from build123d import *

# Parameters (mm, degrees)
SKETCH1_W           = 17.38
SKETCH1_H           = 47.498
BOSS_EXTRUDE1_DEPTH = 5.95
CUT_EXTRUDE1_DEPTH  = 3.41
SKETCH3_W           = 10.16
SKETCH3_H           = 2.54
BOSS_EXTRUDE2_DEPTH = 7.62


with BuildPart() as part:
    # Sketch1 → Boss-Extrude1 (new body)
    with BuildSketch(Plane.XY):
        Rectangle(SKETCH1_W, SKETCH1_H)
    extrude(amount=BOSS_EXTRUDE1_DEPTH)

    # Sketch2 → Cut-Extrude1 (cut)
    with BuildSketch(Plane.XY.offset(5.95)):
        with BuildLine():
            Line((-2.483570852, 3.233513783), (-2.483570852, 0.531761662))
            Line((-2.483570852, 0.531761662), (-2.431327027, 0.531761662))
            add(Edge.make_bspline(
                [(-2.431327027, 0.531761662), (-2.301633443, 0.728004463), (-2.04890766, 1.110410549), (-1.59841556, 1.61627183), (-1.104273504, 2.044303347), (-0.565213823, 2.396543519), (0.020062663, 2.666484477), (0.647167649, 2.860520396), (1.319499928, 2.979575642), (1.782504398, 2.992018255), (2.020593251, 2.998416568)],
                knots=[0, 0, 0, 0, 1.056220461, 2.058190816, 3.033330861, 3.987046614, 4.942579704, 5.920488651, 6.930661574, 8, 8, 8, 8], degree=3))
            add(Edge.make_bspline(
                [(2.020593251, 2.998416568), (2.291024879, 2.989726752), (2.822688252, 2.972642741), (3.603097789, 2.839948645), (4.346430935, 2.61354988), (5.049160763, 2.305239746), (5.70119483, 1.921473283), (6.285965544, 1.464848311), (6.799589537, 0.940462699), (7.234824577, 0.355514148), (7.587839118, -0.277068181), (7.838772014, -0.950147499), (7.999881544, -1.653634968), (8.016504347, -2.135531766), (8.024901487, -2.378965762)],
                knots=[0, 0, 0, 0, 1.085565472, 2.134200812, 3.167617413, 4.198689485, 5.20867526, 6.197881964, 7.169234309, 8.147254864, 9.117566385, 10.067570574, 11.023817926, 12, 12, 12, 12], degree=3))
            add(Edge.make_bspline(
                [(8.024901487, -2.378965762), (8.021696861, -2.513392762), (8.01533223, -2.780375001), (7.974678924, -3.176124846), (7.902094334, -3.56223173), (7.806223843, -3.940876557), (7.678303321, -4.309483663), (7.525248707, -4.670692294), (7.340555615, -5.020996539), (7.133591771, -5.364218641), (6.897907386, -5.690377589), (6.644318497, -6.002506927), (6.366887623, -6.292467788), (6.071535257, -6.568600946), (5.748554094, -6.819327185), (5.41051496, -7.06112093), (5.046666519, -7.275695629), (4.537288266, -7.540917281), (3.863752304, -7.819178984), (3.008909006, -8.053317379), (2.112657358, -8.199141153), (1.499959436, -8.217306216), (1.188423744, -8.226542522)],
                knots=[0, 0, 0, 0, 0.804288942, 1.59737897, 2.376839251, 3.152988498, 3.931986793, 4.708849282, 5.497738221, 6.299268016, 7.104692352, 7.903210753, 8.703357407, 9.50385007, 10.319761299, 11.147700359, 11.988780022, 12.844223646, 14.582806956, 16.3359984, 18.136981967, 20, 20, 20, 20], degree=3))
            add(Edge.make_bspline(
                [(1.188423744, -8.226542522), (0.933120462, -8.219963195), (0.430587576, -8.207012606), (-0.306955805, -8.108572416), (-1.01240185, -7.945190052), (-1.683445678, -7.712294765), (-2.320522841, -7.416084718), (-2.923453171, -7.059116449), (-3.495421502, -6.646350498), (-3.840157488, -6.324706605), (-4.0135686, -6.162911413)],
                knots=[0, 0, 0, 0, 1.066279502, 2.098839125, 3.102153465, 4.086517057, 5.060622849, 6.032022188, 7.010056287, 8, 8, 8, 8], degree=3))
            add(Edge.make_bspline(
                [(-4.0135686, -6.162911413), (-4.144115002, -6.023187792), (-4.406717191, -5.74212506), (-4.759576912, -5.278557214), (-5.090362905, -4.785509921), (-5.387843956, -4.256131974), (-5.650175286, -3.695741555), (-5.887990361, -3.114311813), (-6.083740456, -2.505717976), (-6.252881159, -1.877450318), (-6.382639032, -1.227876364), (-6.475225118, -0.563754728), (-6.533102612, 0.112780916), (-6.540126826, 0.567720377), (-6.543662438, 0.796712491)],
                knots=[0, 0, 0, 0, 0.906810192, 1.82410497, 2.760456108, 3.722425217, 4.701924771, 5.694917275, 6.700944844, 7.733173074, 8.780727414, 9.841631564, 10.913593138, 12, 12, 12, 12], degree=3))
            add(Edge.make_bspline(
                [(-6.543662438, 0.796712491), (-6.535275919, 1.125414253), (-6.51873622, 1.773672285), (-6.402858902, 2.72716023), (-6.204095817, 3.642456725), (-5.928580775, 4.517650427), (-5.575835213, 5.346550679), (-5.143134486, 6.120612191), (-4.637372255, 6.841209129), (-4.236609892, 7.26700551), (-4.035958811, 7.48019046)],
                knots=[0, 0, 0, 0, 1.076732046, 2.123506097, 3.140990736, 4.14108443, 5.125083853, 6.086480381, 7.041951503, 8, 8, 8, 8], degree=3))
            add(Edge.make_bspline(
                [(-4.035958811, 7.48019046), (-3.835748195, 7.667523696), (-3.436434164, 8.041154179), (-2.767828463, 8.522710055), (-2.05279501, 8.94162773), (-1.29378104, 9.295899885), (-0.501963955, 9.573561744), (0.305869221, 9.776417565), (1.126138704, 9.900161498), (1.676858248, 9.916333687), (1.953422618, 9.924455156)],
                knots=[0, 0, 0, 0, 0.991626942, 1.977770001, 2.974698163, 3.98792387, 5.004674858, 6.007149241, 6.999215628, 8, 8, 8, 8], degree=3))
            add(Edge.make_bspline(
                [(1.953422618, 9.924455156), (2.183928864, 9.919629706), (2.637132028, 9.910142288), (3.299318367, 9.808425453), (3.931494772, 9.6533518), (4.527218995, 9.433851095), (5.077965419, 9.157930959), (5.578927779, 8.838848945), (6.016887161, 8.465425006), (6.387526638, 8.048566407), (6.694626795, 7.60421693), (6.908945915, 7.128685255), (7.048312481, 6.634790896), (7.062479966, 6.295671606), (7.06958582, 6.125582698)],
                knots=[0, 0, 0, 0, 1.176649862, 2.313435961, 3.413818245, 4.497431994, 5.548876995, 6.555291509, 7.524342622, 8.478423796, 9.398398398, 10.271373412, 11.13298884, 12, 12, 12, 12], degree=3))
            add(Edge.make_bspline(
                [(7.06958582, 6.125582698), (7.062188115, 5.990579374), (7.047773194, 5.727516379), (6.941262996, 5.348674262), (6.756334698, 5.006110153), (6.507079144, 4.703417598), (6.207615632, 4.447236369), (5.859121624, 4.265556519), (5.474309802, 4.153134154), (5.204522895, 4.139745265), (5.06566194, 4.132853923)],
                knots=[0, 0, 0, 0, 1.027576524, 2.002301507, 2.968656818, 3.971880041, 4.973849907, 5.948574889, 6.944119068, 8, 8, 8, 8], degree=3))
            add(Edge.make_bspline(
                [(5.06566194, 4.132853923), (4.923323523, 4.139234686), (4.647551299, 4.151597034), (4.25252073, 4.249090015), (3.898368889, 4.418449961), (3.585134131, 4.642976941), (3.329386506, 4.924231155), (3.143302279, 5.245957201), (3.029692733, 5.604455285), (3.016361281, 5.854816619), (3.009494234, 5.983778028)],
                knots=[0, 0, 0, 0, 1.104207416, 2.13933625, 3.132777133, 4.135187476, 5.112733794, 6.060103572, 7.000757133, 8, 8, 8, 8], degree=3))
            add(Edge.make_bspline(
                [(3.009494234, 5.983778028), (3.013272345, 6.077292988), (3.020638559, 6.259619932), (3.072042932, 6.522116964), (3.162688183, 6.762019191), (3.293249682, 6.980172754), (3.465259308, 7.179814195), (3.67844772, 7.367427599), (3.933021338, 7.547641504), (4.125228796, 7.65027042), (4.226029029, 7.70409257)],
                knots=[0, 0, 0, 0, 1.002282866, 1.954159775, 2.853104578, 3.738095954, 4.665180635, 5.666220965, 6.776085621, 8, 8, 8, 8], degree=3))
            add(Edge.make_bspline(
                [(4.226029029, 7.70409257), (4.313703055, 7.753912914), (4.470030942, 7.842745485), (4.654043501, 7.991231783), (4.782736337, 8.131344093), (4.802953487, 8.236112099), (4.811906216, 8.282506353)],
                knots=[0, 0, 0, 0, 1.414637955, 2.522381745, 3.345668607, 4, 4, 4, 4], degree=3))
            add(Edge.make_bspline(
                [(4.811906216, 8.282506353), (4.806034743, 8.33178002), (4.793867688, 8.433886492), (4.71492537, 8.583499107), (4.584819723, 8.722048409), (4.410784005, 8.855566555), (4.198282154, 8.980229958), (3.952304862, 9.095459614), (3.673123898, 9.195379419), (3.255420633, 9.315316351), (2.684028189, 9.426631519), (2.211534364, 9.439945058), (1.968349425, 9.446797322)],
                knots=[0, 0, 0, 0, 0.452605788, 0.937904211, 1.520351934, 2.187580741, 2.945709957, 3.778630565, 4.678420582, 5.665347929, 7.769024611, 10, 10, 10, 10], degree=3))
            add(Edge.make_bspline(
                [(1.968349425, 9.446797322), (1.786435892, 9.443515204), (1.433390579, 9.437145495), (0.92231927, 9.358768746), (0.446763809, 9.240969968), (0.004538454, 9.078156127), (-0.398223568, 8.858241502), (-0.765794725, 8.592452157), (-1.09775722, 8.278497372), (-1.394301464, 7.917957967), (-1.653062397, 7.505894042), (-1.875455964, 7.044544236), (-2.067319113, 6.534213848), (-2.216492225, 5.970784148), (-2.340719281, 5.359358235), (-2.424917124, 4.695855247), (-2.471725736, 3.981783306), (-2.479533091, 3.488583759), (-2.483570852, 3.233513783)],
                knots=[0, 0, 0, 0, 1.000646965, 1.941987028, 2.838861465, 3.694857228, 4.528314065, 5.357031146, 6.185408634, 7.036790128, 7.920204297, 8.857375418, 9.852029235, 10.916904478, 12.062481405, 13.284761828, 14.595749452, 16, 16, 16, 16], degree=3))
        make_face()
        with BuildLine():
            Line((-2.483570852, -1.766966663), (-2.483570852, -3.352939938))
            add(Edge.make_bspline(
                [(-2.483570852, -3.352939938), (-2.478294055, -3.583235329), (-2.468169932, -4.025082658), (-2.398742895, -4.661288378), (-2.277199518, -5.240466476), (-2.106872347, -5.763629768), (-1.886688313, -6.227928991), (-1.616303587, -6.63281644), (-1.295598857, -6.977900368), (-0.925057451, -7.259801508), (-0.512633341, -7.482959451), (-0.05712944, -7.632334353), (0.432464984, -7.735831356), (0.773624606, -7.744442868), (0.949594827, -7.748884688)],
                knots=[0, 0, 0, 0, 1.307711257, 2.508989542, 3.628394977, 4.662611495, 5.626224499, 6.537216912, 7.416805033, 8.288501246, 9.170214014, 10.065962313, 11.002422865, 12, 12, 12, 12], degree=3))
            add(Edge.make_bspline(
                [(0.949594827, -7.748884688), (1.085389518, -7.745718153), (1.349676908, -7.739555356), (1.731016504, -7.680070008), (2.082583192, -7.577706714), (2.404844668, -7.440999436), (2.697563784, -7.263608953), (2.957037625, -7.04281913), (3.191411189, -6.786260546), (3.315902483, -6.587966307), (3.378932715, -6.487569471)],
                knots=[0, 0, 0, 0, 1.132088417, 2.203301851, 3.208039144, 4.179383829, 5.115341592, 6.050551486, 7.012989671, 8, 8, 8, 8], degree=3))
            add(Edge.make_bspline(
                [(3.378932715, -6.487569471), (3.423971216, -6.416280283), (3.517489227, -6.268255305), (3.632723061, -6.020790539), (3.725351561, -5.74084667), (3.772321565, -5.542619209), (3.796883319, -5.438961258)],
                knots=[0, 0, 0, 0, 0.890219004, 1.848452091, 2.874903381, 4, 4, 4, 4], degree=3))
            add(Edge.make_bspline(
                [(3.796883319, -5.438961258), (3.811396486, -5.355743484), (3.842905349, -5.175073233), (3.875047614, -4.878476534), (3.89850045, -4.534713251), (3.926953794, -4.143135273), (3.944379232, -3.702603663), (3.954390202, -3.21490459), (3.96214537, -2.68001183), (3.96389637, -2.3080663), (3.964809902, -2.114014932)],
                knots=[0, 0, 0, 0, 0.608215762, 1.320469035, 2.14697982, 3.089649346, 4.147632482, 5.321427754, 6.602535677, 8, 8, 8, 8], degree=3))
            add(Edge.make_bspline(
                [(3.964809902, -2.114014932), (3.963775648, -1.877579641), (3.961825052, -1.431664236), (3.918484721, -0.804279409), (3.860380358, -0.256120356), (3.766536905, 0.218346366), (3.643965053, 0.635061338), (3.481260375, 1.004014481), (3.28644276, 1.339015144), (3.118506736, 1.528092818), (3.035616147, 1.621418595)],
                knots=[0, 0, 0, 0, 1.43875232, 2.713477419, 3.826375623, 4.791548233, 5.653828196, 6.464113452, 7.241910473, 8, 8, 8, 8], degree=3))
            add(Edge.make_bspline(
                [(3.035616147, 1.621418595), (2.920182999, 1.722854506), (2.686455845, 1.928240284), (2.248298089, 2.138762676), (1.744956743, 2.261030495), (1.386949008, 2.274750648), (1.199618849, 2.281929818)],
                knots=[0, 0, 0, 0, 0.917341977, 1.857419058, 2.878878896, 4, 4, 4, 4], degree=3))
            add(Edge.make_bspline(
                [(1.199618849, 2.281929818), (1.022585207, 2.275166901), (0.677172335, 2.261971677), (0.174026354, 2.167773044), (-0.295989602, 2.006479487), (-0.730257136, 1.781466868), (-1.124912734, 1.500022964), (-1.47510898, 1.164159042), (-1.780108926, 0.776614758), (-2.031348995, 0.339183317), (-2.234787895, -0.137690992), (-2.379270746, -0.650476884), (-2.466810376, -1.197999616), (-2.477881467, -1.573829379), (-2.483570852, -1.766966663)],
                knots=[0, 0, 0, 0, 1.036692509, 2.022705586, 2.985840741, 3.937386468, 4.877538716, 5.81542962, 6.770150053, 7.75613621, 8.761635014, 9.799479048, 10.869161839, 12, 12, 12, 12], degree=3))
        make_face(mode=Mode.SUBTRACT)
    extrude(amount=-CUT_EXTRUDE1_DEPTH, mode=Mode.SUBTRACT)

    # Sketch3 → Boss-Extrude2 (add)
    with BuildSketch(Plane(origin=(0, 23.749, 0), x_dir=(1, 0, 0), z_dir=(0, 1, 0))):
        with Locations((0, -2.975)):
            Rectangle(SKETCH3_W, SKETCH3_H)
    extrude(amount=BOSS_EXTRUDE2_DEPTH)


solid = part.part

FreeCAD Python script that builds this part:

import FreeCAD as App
import Part
import Sketcher
Q = App.Units.Quantity


def add_polygon(sketch, points):
    """Adds a closed chain of lines whose ends are joined by coincident constraints."""
    first, n = sketch.GeometryCount, len(points)
    for a, b in zip(points, points[1:] + points[:1]):
        sketch.addGeometry(Part.LineSegment(App.Vector(*a, 0), App.Vector(*b, 0)), False)
    for i in range(n):
        sketch.addConstraint(Sketcher.Constraint("Coincident", first + i, 2, first + (i + 1) % n, 1))

doc = App.newDocument("Part")
params = doc.addObject("Spreadsheet::Sheet", "Params")
for row, (alias, value) in enumerate([
    ("sketch1_height", "1.87 in"),
    ("pad1_length", "5.95 mm"),
    ("pocket1_length", "3.41 mm"),
    ("sketch3_width", "0.4 in"),
    ("sketch3_height", "0.1 in"),
    ("pad2_length", "0.3 in"),
], start=1):
    params.set(f"A{row}", alias)
    params.set(f"B{row}", "=" + value)
    params.setAlias(f"B{row}", alias)

body = doc.addObject("PartDesign::Body", "Body")

sketch1 = body.newObject("Sketcher::SketchObject", "Sketch")
sketch1.AttachmentSupport = (doc.getObject("XY_Plane"), [""])
sketch1.MapMode = "FlatFace"
add_polygon(sketch1, [(-8.69, 23.749), (-8.69, -23.749), (8.69, -23.749), (8.69, 23.749)])
sketch1.addConstraint([
    Sketcher.Constraint("Vertical", 0),
    Sketcher.Constraint("Horizontal", 1),
    Sketcher.Constraint("Vertical", 2),
    Sketcher.Constraint("Horizontal", 3),
    Sketcher.Constraint("Symmetric", 0, 2, 2, 2, -1, 1),
    Sketcher.Constraint("DistanceY", 0, 2, 0, 1, Q("1.87 in")),
    Sketcher.Constraint("DistanceX", 1, 1, 1, 2, Q("17.38 mm")),
])
sketch1.setExpression("Constraints[9]", "Params.sketch1_height")
pad1 = body.newObject("PartDesign::Pad", "Pad")
pad1.Profile = sketch1
pad1.setExpression("Length", "Params.pad1_length")

sketch2 = body.newObject("Sketcher::SketchObject", "Sketch001")
sketch2.AttachmentSupport = (doc.getObject("XY_Plane"), [""])
sketch2.MapMode = "FlatFace"
sketch2.AttachmentOffset = App.Placement(App.Vector(0, 0, 5.95), App.Rotation())
sketch2.addGeometry([
    Part.LineSegment(App.Vector(-2.483571, 0.531762, 0), App.Vector(-2.483571, 3.233514, 0)),
    Part.BSplineCurve([App.Vector(1.968349, 9.446797, 0), App.Vector(1.786436, 9.443515, 0), App.Vector(1.433391, 9.437145, 0), App.Vector(0.922319, 9.358769, 0), App.Vector(0.446764, 9.24097, 0), App.Vector(0.004538, 9.078156, 0), App.Vector(-0.398224, 8.858242, 0), App.Vector(-0.765795, 8.592452, 0), App.Vector(-1.097757, 8.278497, 0), App.Vector(-1.394301, 7.917958, 0), App.Vector(-1.653062, 7.505894, 0), App.Vector(-1.875456, 7.044544, 0), App.Vector(-2.067319, 6.534214, 0), App.Vector(-2.216492, 5.970784, 0), App.Vector(-2.340719, 5.359358, 0), App.Vector(-2.424917, 4.695855, 0), App.Vector(-2.471726, 3.981783, 0), App.Vector(-2.479533, 3.488584, 0), App.Vector(-2.483571, 3.233514, 0)], [4, 1, 1, 1, 1, 1, 1, 1, 1, 1, 1, 1, 1, 1, 1, 1, 4], [0, 1.000646965, 1.941987028, 2.838861465, 3.694857228, 4.528314065, 5.357031146, 6.185408634, 7.036790128, 7.920204297, 8.857375418, 9.852029235, 10.916904478, 12.062481405, 13.284761828, 14.595749452, 16], False, 3, [1, 1, 1, 1, 1, 1, 1, 1, 1, 1, 1, 1, 1, 1, 1, 1, 1, 1, 1], False),
    Part.BSplineCurve([App.Vector(4.811906, 8.282506, 0), App.Vector(4.806035, 8.33178, 0), App.Vector(4.793868, 8.433886, 0), App.Vector(4.714925, 8.583499, 0), App.Vector(4.58482, 8.722048, 0), App.Vector(4.410784, 8.855567, 0), App.Vector(4.198282, 8.98023, 0), App.Vector(3.952305, 9.09546, 0), App.Vector(3.673124, 9.195379, 0), App.Vector(3.255421, 9.315316, 0), App.Vector(2.684028, 9.426632, 0), App.Vector(2.211534, 9.439945, 0), App.Vector(1.968349, 9.446797, 0)], [4, 1, 1, 1, 1, 1, 1, 1, 1, 1, 4], [0, 0.452605788, 0.937904211, 1.520351934, 2.187580741, 2.945709957, 3.778630565, 4.678420582, 5.665347929, 7.769024611, 10], False, 3, [1, 1, 1, 1, 1, 1, 1, 1, 1, 1, 1, 1, 1], False),
    Part.BSplineCurve([App.Vector(4.226029, 7.704093, 0), App.Vector(4.313703, 7.753913, 0), App.Vector(4.470031, 7.842745, 0), App.Vector(4.654044, 7.991232, 0), App.Vector(4.782736, 8.131344, 0), App.Vector(4.802953, 8.236112, 0), App.Vector(4.811906, 8.282506, 0)], [4, 1, 1, 1, 4], [0, 1.414637955, 2.522381745, 3.345668607, 4], False, 3, [1, 1, 1, 1, 1, 1, 1], False),
    Part.BSplineCurve([App.Vector(3.009494, 5.983778, 0), App.Vector(3.013272, 6.077293, 0), App.Vector(3.020639, 6.25962, 0), App.Vector(3.072043, 6.522117, 0), App.Vector(3.162688, 6.762019, 0), App.Vector(3.29325, 6.980173, 0), App.Vector(3.465259, 7.179814, 0), App.Vector(3.678448, 7.367428, 0), App.Vector(3.933021, 7.547642, 0), App.Vector(4.125229, 7.65027, 0), App.Vector(4.226029, 7.704093, 0)], [4, 1, 1, 1, 1, 1, 1, 1, 4], [0, 1.002282866, 1.954159775, 2.853104578, 3.738095954, 4.665180635, 5.666220965, 6.776085621, 8], False, 3, [1, 1, 1, 1, 1, 1, 1, 1, 1, 1, 1], False),
    Part.BSplineCurve([App.Vector(5.065662, 4.132854, 0), App.Vector(4.923324, 4.139235, 0), App.Vector(4.647551, 4.151597, 0), App.Vector(4.252521, 4.24909, 0), App.Vector(3.898369, 4.41845, 0), App.Vector(3.585134, 4.642977, 0), App.Vector(3.329387, 4.924231, 0), App.Vector(3.143302, 5.245957, 0), App.Vector(3.029693, 5.604455, 0), App.Vector(3.016361, 5.854817, 0), App.Vector(3.009494, 5.983778, 0)], [4, 1, 1, 1, 1, 1, 1, 1, 4], [0, 1.104207416, 2.13933625, 3.132777133, 4.135187476, 5.112733794, 6.060103572, 7.000757133, 8], False, 3, [1, 1, 1, 1, 1, 1, 1, 1, 1, 1, 1], False),
    Part.BSplineCurve([App.Vector(7.069586, 6.125583, 0), App.Vector(7.062188, 5.990579, 0), App.Vector(7.047773, 5.727516, 0), App.Vector(6.941263, 5.348674, 0), App.Vector(6.756335, 5.00611, 0), App.Vector(6.507079, 4.703418, 0), App.Vector(6.207616, 4.447236, 0), App.Vector(5.859122, 4.265557, 0), App.Vector(5.47431, 4.153134, 0), App.Vector(5.204523, 4.139745, 0), App.Vector(5.065662, 4.132854, 0)], [4, 1, 1, 1, 1, 1, 1, 1, 4], [0, 1.027576524, 2.002301507, 2.968656818, 3.971880041, 4.973849907, 5.948574889, 6.944119068, 8], False, 3, [1, 1, 1, 1, 1, 1, 1, 1, 1, 1, 1], False),
    Part.BSplineCurve([App.Vector(1.953423, 9.924455, 0), App.Vector(2.183929, 9.91963, 0), App.Vector(2.637132, 9.910142, 0), App.Vector(3.299318, 9.808425, 0), App.Vector(3.931495, 9.653352, 0), App.Vector(4.527219, 9.433851, 0), App.Vector(5.077965, 9.157931, 0), App.Vector(5.578928, 8.838849, 0), App.Vector(6.016887, 8.465425, 0), App.Vector(6.387527, 8.048566, 0), App.Vector(6.694627, 7.604217, 0), App.Vector(6.908946, 7.128685, 0), App.Vector(7.048312, 6.634791, 0), App.Vector(7.06248, 6.295672, 0), App.Vector(7.069586, 6.125583, 0)], [4, 1, 1, 1, 1, 1, 1, 1, 1, 1, 1, 1, 4], [0, 1.176649862, 2.313435961, 3.413818245, 4.497431994, 5.548876995, 6.555291509, 7.524342622, 8.478423796, 9.398398398, 10.271373412, 11.13298884, 12], False, 3, [1, 1, 1, 1, 1, 1, 1, 1, 1, 1, 1, 1, 1, 1, 1], False),
    Part.BSplineCurve([App.Vector(-4.035959, 7.48019, 0), App.Vector(-3.835748, 7.667524, 0), App.Vector(-3.436434, 8.041154, 0), App.Vector(-2.767828, 8.52271, 0), App.Vector(-2.052795, 8.941628, 0), App.Vector(-1.293781, 9.2959, 0), App.Vector(-0.501964, 9.573562, 0), App.Vector(0.305869, 9.776418, 0), App.Vector(1.126139, 9.900161, 0), App.Vector(1.676858, 9.916334, 0), App.Vector(1.953423, 9.924455, 0)], [4, 1, 1, 1, 1, 1, 1, 1, 4], [0, 0.991626942, 1.977770001, 2.974698163, 3.98792387, 5.004674858, 6.007149241, 6.999215628, 8], False, 3, [1, 1, 1, 1, 1, 1, 1, 1, 1, 1, 1], False),
    Part.BSplineCurve([App.Vector(-6.543662, 0.796712, 0), App.Vector(-6.535276, 1.125414, 0), App.Vector(-6.518736, 1.773672, 0), App.Vector(-6.402859, 2.72716, 0), App.Vector(-6.204096, 3.642457, 0), App.Vector(-5.928581, 4.51765, 0), App.Vector(-5.575835, 5.346551, 0), App.Vector(-5.143134, 6.120612, 0), App.Vector(-4.637372, 6.841209, 0), App.Vector(-4.23661, 7.267006, 0), App.Vector(-4.035959, 7.48019, 0)], [4, 1, 1, 1, 1, 1, 1, 1, 4], [0, 1.076732046, 2.123506097, 3.140990736, 4.14108443, 5.125083853, 6.086480381, 7.041951503, 8], False, 3, [1, 1, 1, 1, 1, 1, 1, 1, 1, 1, 1], False),
    Part.BSplineCurve([App.Vector(-4.013569, -6.162911, 0), App.Vector(-4.144115, -6.023188, 0), App.Vector(-4.406717, -5.742125, 0), App.Vector(-4.759577, -5.278557, 0), App.Vector(-5.090363, -4.78551, 0), App.Vector(-5.387844, -4.256132, 0), App.Vector(-5.650175, -3.695742, 0), App.Vector(-5.88799, -3.114312, 0), App.Vector(-6.08374, -2.505718, 0), App.Vector(-6.252881, -1.87745, 0), App.Vector(-6.382639, -1.227876, 0), App.Vector(-6.475225, -0.563755, 0), App.Vector(-6.533103, 0.112781, 0), App.Vector(-6.540127, 0.56772, 0), App.Vector(-6.543662, 0.796712, 0)], [4, 1, 1, 1, 1, 1, 1, 1, 1, 1, 1, 1, 4], [0, 0.906810192, 1.82410497, 2.760456108, 3.722425217, 4.701924771, 5.694917275, 6.700944844, 7.733173074, 8.780727414, 9.841631564, 10.913593138, 12], False, 3, [1, 1, 1, 1, 1, 1, 1, 1, 1, 1, 1, 1, 1, 1, 1], False),
    Part.BSplineCurve([App.Vector(1.188424, -8.226543, 0), App.Vector(0.93312, -8.219963, 0), App.Vector(0.430588, -8.207013, 0), App.Vector(-0.306956, -8.108572, 0), App.Vector(-1.012402, -7.94519, 0), App.Vector(-1.683446, -7.712295, 0), App.Vector(-2.320523, -7.416085, 0), App.Vector(-2.923453, -7.059116, 0), App.Vector(-3.495422, -6.64635, 0), App.Vector(-3.840157, -6.324707, 0), App.Vector(-4.013569, -6.162911, 0)], [4, 1, 1, 1, 1, 1, 1, 1, 4], [0, 1.066279502, 2.098839125, 3.102153465, 4.086517057, 5.060622849, 6.032022188, 7.010056287, 8], False, 3, [1, 1, 1, 1, 1, 1, 1, 1, 1, 1, 1], False),
    Part.BSplineCurve([App.Vector(8.024901, -2.378966, 0), App.Vector(8.021697, -2.513393, 0), App.Vector(8.015332, -2.780375, 0), App.Vector(7.974679, -3.176125, 0), App.Vector(7.902094, -3.562232, 0), App.Vector(7.806224, -3.940877, 0), App.Vector(7.678303, -4.309484, 0), App.Vector(7.525249, -4.670692, 0), App.Vector(7.340556, -5.020997, 0), App.Vector(7.133592, -5.364219, 0), App.Vector(6.897907, -5.690378, 0), App.Vector(6.644318, -6.002507, 0), App.Vector(6.366888, -6.292468, 0), App.Vector(6.071535, -6.568601, 0), App.Vector(5.748554, -6.819327, 0), App.Vector(5.410515, -7.061121, 0), App.Vector(5.046667, -7.275696, 0), App.Vector(4.537288, -7.540917, 0), App.Vector(3.863752, -7.819179, 0), App.Vector(3.008909, -8.053317, 0), App.Vector(2.112657, -8.199141, 0), App.Vector(1.499959, -8.217306, 0), App.Vector(1.188424, -8.226543, 0)], [4, 1, 1, 1, 1, 1, 1, 1, 1, 1, 1, 1, 1, 1, 1, 1, 1, 1, 1, 1, 4], [0, 0.804288942, 1.59737897, 2.376839251, 3.152988498, 3.931986793, 4.708849282, 5.497738221, 6.299268016, 7.104692352, 7.903210753, 8.703357407, 9.50385007, 10.319761299, 11.147700359, 11.988780022, 12.844223646, 14.582806956, 16.3359984, 18.136981967, 20], False, 3, [1, 1, 1, 1, 1, 1, 1, 1, 1, 1, 1, 1, 1, 1, 1, 1, 1, 1, 1, 1, 1, 1, 1], False),
    Part.BSplineCurve([App.Vector(2.020593, 2.998417, 0), App.Vector(2.291025, 2.989727, 0), App.Vector(2.822688, 2.972643, 0), App.Vector(3.603098, 2.839949, 0), App.Vector(4.346431, 2.61355, 0), App.Vector(5.049161, 2.30524, 0), App.Vector(5.701195, 1.921473, 0), App.Vector(6.285966, 1.464848, 0), App.Vector(6.79959, 0.940463, 0), App.Vector(7.234825, 0.355514, 0), App.Vector(7.587839, -0.277068, 0), App.Vector(7.838772, -0.950147, 0), App.Vector(7.999882, -1.653635, 0), App.Vector(8.016504, -2.135532, 0), App.Vector(8.024901, -2.378966, 0)], [4, 1, 1, 1, 1, 1, 1, 1, 1, 1, 1, 1, 4], [0, 1.085565472, 2.134200812, 3.167617413, 4.198689485, 5.20867526, 6.197881964, 7.169234309, 8.147254864, 9.117566385, 10.067570574, 11.023817926, 12], False, 3, [1, 1, 1, 1, 1, 1, 1, 1, 1, 1, 1, 1, 1, 1, 1], False),
    Part.BSplineCurve([App.Vector(-2.431327, 0.531762, 0), App.Vector(-2.301633, 0.728004, 0), App.Vector(-2.048908, 1.110411, 0), App.Vector(-1.598416, 1.616272, 0), App.Vector(-1.104274, 2.044303, 0), App.Vector(-0.565214, 2.396544, 0), App.Vector(0.020063, 2.666484, 0), App.Vector(0.647168, 2.86052, 0), App.Vector(1.3195, 2.979576, 0), App.Vector(1.782504, 2.992018, 0), App.Vector(2.020593, 2.998417, 0)], [4, 1, 1, 1, 1, 1, 1, 1, 4], [0, 1.056220461, 2.058190816, 3.033330861, 3.987046614, 4.942579704, 5.920488651, 6.930661574, 8], False, 3, [1, 1, 1, 1, 1, 1, 1, 1, 1, 1, 1], False),
    Part.LineSegment(App.Vector(-2.431327, 0.531762, 0), App.Vector(-2.483571, 0.531762, 0)),
    Part.BSplineCurve([App.Vector(1.199619, 2.28193, 0), App.Vector(1.022585, 2.275167, 0), App.Vector(0.677172, 2.261972, 0), App.Vector(0.174026, 2.167773, 0), App.Vector(-0.29599, 2.006479, 0), App.Vector(-0.730257, 1.781467, 0), App.Vector(-1.124913, 1.500023, 0), App.Vector(-1.475109, 1.164159, 0), App.Vector(-1.780109, 0.776615, 0), App.Vector(-2.031349, 0.339183, 0), App.Vector(-2.234788, -0.137691, 0), App.Vector(-2.379271, -0.650477, 0), App.Vector(-2.46681, -1.198, 0), App.Vector(-2.477881, -1.573829, 0), App.Vector(-2.483571, -1.766967, 0)], [4, 1, 1, 1, 1, 1, 1, 1, 1, 1, 1, 1, 4], [0, 1.036692509, 2.022705586, 2.985840741, 3.937386468, 4.877538716, 5.81542962, 6.770150053, 7.75613621, 8.761635014, 9.799479048, 10.869161839, 12], False, 3, [1, 1, 1, 1, 1, 1, 1, 1, 1, 1, 1, 1, 1, 1, 1], False),
    Part.BSplineCurve([App.Vector(3.035616, 1.621419, 0), App.Vector(2.920183, 1.722855, 0), App.Vector(2.686456, 1.92824, 0), App.Vector(2.248298, 2.138763, 0), App.Vector(1.744957, 2.26103, 0), App.Vector(1.386949, 2.274751, 0), App.Vector(1.199619, 2.28193, 0)], [4, 1, 1, 1, 4], [0, 0.917341977, 1.857419058, 2.878878896, 4], False, 3, [1, 1, 1, 1, 1, 1, 1], False),
    Part.BSplineCurve([App.Vector(3.96481, -2.114015, 0), App.Vector(3.963776, -1.87758, 0), App.Vector(3.961825, -1.431664, 0), App.Vector(3.918485, -0.804279, 0), App.Vector(3.86038, -0.25612, 0), App.Vector(3.766537, 0.218346, 0), App.Vector(3.643965, 0.635061, 0), App.Vector(3.48126, 1.004014, 0), App.Vector(3.286443, 1.339015, 0), App.Vector(3.118507, 1.528093, 0), App.Vector(3.035616, 1.621419, 0)], [4, 1, 1, 1, 1, 1, 1, 1, 4], [0, 1.43875232, 2.713477419, 3.826375623, 4.791548233, 5.653828196, 6.464113452, 7.241910473, 8], False, 3, [1, 1, 1, 1, 1, 1, 1, 1, 1, 1, 1], False),
    Part.BSplineCurve([App.Vector(3.796883, -5.438961, 0), App.Vector(3.811396, -5.355743, 0), App.Vector(3.842905, -5.175073, 0), App.Vector(3.875048, -4.878477, 0), App.Vector(3.8985, -4.534713, 0), App.Vector(3.926954, -4.143135, 0), App.Vector(3.944379, -3.702604, 0), App.Vector(3.95439, -3.214905, 0), App.Vector(3.962145, -2.680012, 0), App.Vector(3.963896, -2.308066, 0), App.Vector(3.96481, -2.114015, 0)], [4, 1, 1, 1, 1, 1, 1, 1, 4], [0, 0.608215762, 1.320469035, 2.14697982, 3.089649346, 4.147632482, 5.321427754, 6.602535677, 8], False, 3, [1, 1, 1, 1, 1, 1, 1, 1, 1, 1, 1], False),
    Part.BSplineCurve([App.Vector(3.378933, -6.487569, 0), App.Vector(3.423971, -6.41628, 0), App.Vector(3.517489, -6.268255, 0), App.Vector(3.632723, -6.020791, 0), App.Vector(3.725352, -5.740847, 0), App.Vector(3.772322, -5.542619, 0), App.Vector(3.796883, -5.438961, 0)], [4, 1, 1, 1, 4], [0, 0.890219004, 1.848452091, 2.874903381, 4], False, 3, [1, 1, 1, 1, 1, 1, 1], False),
    Part.BSplineCurve([App.Vector(0.949595, -7.748885, 0), App.Vector(1.08539, -7.745718, 0), App.Vector(1.349677, -7.739555, 0), App.Vector(1.731017, -7.68007, 0), App.Vector(2.082583, -7.577707, 0), App.Vector(2.404845, -7.440999, 0), App.Vector(2.697564, -7.263609, 0), App.Vector(2.957038, -7.042819, 0), App.Vector(3.191411, -6.786261, 0), App.Vector(3.315902, -6.587966, 0), App.Vector(3.378933, -6.487569, 0)], [4, 1, 1, 1, 1, 1, 1, 1, 4], [0, 1.132088417, 2.203301851, 3.208039144, 4.179383829, 5.115341592, 6.050551486, 7.012989671, 8], False, 3, [1, 1, 1, 1, 1, 1, 1, 1, 1, 1, 1], False),
    Part.BSplineCurve([App.Vector(-2.483571, -3.35294, 0), App.Vector(-2.478294, -3.583235, 0), App.Vector(-2.46817, -4.025083, 0), App.Vector(-2.398743, -4.661288, 0), App.Vector(-2.2772, -5.240466, 0), App.Vector(-2.106872, -5.76363, 0), App.Vector(-1.886688, -6.227929, 0), App.Vector(-1.616304, -6.632816, 0), App.Vector(-1.295599, -6.9779, 0), App.Vector(-0.925057, -7.259802, 0), App.Vector(-0.512633, -7.482959, 0), App.Vector(-0.057129, -7.632334, 0), App.Vector(0.432465, -7.735831, 0), App.Vector(0.773625, -7.744443, 0), App.Vector(0.949595, -7.748885, 0)], [4, 1, 1, 1, 1, 1, 1, 1, 1, 1, 1, 1, 4], [0, 1.307711257, 2.508989542, 3.628394977, 4.662611495, 5.626224499, 6.537216912, 7.416805033, 8.288501246, 9.170214014, 10.065962313, 11.002422865, 12], False, 3, [1, 1, 1, 1, 1, 1, 1, 1, 1, 1, 1, 1, 1, 1, 1], False),
    Part.LineSegment(App.Vector(-2.483571, -3.35294, 0), App.Vector(-2.483571, -1.766967, 0)),
], False)
sketch2.addConstraint([
    Sketcher.Constraint("Block", 1),
    Sketcher.Constraint("Block", 2),
    Sketcher.Constraint("Block", 3),
    Sketcher.Constraint("Block", 4),
    Sketcher.Constraint("Block", 5),
    Sketcher.Constraint("Block", 6),
    Sketcher.Constraint("Block", 7),
    Sketcher.Constraint("Block", 8),
    Sketcher.Constraint("Block", 9),
    Sketcher.Constraint("Block", 10),
    Sketcher.Constraint("Block", 11),
    Sketcher.Constraint("Block", 12),
    Sketcher.Constraint("Block", 13),
    Sketcher.Constraint("Block", 14),
    Sketcher.Constraint("Block", 16),
    Sketcher.Constraint("Block", 17),
    Sketcher.Constraint("Block", 18),
    Sketcher.Constraint("Block", 19),
    Sketcher.Constraint("Block", 20),
    Sketcher.Constraint("Block", 21),
    Sketcher.Constraint("Block", 22),
    Sketcher.Constraint("Coincident", 0, 2, 1, 2),
    Sketcher.Constraint("Coincident", 14, 1, 15, 1),
    Sketcher.Constraint("Coincident", 15, 2, 0, 1),
    Sketcher.Constraint("Coincident", 22, 1, 23, 1),
    Sketcher.Constraint("Coincident", 23, 2, 16, 2),
    Sketcher.Constraint("Vertical", 0),
    Sketcher.Constraint("Horizontal", 15),
])
pocket1 = body.newObject("PartDesign::Pocket", "Pocket")
pocket1.Profile = sketch2
pocket1.setExpression("Length", "Params.pocket1_length")

sketch3 = body.newObject("Sketcher::SketchObject", "Sketch002")
sketch3.AttachmentSupport = (doc.getObject("XZ_Plane"), [""])
sketch3.MapMode = "FlatFace"
sketch3.AttachmentOffset = App.Placement(App.Vector(0, 0, -0.935 * 25.4), App.Rotation())
add_polygon(sketch3, [(-5.08, 1.705), (-5.08, 4.245), (5.08, 4.245), (5.08, 1.705)])
sketch3.addConstraint([
    Sketcher.Constraint("Vertical", 0),
    Sketcher.Constraint("Horizontal", 1),
    Sketcher.Constraint("Vertical", 2),
    Sketcher.Constraint("Horizontal", 3),
    Sketcher.Constraint("DistanceX", 1, 1, 1, 2, Q("0.4 in")),
    Sketcher.Constraint("DistanceY", 0, 1, 0, 2, Q("0.1 in")),
    Sketcher.Constraint("DistanceX", 0, 2, -1, 1, Q("0.2 in")),
    Sketcher.Constraint("DistanceY", -1, 1, 0, 2, Q("4.245 mm")),
])
sketch3.setExpression("Constraints[8]", "Params.sketch3_width")
sketch3.setExpression("Constraints[9]", "Params.sketch3_height")
pad2 = body.newObject("PartDesign::Pad", "Pad001")
pad2.Profile = sketch3
pad2.setExpression("Length", "Params.pad2_length")
pad2.Reversed = True

doc.recompute()
